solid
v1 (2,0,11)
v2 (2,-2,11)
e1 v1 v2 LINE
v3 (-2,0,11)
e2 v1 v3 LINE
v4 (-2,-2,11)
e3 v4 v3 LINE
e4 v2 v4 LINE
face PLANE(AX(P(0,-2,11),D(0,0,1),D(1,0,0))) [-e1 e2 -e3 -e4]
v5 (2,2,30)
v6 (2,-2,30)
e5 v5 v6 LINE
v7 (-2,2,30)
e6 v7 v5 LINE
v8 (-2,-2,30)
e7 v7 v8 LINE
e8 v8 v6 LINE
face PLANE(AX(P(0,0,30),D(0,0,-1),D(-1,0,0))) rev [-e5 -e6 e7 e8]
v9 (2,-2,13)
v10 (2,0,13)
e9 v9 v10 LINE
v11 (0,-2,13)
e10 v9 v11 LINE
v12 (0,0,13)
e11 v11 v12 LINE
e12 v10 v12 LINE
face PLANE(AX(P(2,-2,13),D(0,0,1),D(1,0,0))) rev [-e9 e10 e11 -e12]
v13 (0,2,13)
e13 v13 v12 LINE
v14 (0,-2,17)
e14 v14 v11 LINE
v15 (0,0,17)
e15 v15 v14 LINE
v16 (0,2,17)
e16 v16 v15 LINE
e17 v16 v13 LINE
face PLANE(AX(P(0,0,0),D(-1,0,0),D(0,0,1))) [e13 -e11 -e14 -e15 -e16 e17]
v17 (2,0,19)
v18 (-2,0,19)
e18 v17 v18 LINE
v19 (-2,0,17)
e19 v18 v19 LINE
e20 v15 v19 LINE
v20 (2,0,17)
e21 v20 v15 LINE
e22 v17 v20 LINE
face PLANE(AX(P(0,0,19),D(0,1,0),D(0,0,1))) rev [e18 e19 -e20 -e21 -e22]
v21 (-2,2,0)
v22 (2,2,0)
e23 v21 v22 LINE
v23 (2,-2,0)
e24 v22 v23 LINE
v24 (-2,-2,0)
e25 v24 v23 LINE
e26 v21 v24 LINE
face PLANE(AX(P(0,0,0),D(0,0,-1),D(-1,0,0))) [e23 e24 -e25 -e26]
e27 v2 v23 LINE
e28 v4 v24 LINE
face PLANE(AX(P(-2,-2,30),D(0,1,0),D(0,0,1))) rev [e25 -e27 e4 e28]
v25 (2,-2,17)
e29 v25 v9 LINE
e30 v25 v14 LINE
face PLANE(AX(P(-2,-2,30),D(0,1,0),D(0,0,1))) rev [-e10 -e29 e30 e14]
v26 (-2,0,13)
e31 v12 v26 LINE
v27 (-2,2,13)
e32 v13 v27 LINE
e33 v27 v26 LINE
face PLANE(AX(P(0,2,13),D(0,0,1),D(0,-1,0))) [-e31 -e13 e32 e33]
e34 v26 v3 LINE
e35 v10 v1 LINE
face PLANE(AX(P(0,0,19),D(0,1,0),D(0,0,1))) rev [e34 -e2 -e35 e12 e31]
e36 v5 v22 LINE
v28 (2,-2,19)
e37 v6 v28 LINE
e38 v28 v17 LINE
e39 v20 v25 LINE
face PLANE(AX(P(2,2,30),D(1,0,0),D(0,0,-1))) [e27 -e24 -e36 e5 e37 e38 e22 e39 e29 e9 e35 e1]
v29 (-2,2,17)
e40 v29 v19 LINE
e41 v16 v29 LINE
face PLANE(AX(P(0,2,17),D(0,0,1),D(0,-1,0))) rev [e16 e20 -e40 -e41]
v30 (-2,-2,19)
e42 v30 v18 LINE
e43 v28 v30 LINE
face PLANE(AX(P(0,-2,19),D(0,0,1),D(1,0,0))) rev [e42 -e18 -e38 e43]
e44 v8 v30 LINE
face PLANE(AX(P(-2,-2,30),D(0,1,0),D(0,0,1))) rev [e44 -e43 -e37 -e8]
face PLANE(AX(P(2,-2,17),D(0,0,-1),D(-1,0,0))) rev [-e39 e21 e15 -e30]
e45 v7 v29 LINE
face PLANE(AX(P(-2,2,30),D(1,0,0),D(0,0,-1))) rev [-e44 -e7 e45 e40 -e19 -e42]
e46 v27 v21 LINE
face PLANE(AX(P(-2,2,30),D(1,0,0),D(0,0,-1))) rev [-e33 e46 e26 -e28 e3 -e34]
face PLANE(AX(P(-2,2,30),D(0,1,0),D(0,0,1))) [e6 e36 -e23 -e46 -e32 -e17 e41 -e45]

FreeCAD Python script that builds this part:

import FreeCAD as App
import Part
import Sketcher
Q = App.Units.Quantity


def add_polygon(sketch, points):
    """Adds a closed chain of lines whose ends are joined by coincident constraints."""
    first, n = sketch.GeometryCount, len(points)
    for a, b in zip(points, points[1:] + points[:1]):
        sketch.addGeometry(Part.LineSegment(App.Vector(*a, 0), App.Vector(*b, 0)), False)
    for i in range(n):
        sketch.addConstraint(Sketcher.Constraint("Coincident", first + i, 2, first + (i + 1) % n, 1))

doc = App.newDocument("Part")
body = doc.addObject("PartDesign::Body", "Body")

sketch1 = body.newObject("Sketcher::SketchObject", "Sketch")
sketch1.AttachmentSupport = (doc.getObject("XY_Plane"), [""])
sketch1.MapMode = "FlatFace"
add_polygon(sketch1, [(-2, 2), (-2, -2), (2, -2), (2, 2)])
sketch1.addConstraint([
    Sketcher.Constraint("Vertical", 0),
    Sketcher.Constraint("Horizontal", 1),
    Sketcher.Constraint("Vertical", 2),
    Sketcher.Constraint("Horizontal", 3),
    Sketcher.Constraint("Symmetric", 0, 2, 2, 2, -1, 1),
    Sketcher.Constraint("Equal", 3, 0),
    Sketcher.Constraint("DistanceX", 1, 1, 1, 2, Q("4 mm")),
])
pad1 = body.newObject("PartDesign::Pad", "Pad")
pad1.Profile = sketch1
pad1.Length = 30

sketch2 = body.newObject("Sketcher::SketchObject", "Sketch001")
sketch2.AttachmentSupport = (doc.getObject("YZ_Plane"), [""])
sketch2.MapMode = "FlatFace"
sketch2.AttachmentOffset = App.Placement(App.Vector(0, 0, -2), App.Rotation())
add_polygon(sketch2, [(0, 11), (-2, 11), (-2, 19), (0, 19)])
sketch2.addConstraint([
    Sketcher.Constraint("Horizontal", 0),
    Sketcher.Constraint("Vertical", 1),
    Sketcher.Constraint("Horizontal", 2),
    Sketcher.Constraint("Vertical", 3),
    Sketcher.Constraint("PointOnObject", 2, 2, -2),
    Sketcher.Constraint("DistanceX", 0, 2, 0, 1, Q("2 mm")),
    Sketcher.Constraint("DistanceY", 1, 1, 1, 2, Q("8 mm")),
    Sketcher.Constraint("DistanceY", -1, 1, 0, 2, Q("11 mm")),
])
pocket1 = body.newObject("PartDesign::Pocket", "Pocket")
pocket1.Profile = sketch2
pocket1.Length = 2
pocket1.Reversed = True

sketch3 = body.newObject("Sketcher::SketchObject", "Sketch002")
sketch3.AttachmentSupport = (doc.getObject("YZ_Plane"), [""])
sketch3.MapMode = "FlatFace"
add_polygon(sketch3, [(0, 17), (-2, 17), (-2, 19), (0, 19)])
sketch3.addConstraint([
    Sketcher.Constraint("Horizontal", 0),
    Sketcher.Constraint("Vertical", 1),
    Sketcher.Constraint("Horizontal", 2),
    Sketcher.Constraint("Vertical", 3),
    Sketcher.Constraint("PointOnObject", 2, 2, -2),
    Sketcher.Constraint("Equal", 2, 1),
    Sketcher.Constraint("DistanceX", 0, 2, 0, 1, Q("2 mm")),
    Sketcher.Constraint("DistanceY", -1, 1, 0, 2, Q("17 mm")),
])
pocket2 = body.newObject("PartDesign::Pocket", "Pocket001")
pocket2.Profile = sketch3
pocket2.Length = 2
pocket2.Reversed = True

sketch4 = body.newObject("Sketcher::SketchObject", "Sketch003")
sketch4.AttachmentSupport = (doc.getObject("YZ_Plane"), [""])
sketch4.MapMode = "FlatFace"
add_polygon(sketch4, [(0, 11), (-2, 11), (-2, 13), (0, 13)])
sketch4.addConstraint([
    Sketcher.Constraint("Horizontal", 0),
    Sketcher.Constraint("Vertical", 1),
    Sketcher.Constraint("Horizontal", 2),
    Sketcher.Constraint("Vertical", 3),
    Sketcher.Constraint("PointOnObject", 2, 2, -2),
    Sketcher.Constraint("Equal", 2, 1),
    Sketcher.Constraint("DistanceX", 0, 2, 0, 1, Q("2 mm")),
    Sketcher.Constraint("DistanceY", -1, 1, 0, 2, Q("11 mm")),
])
pocket3 = body.newObject("PartDesign::Pocket", "Pocket002")
pocket3.Profile = sketch4
pocket3.Length = 2
pocket3.Reversed = True

sketch5 = body.newObject("Sketcher::SketchObject", "Sketch004")
sketch5.AttachmentSupport = (doc.getObject("XZ_Plane"), [""])
sketch5.MapMode = "FlatFace"
add_polygon(sketch5, [(-2, 17), (-2, 13), (0, 13), (0, 17)])
sketch5.addConstraint([
    Sketcher.Constraint("Vertical", 0),
    Sketcher.Constraint("Horizontal", 1),
    Sketcher.Constraint("Vertical", 2),
    Sketcher.Constraint("Horizontal", 3),
    Sketcher.Constraint("PointOnObject", 1, 2, -2),
    Sketcher.Constraint("DistanceX", 1, 1, 1, 2, Q("2 mm")),
    Sketcher.Constraint("DistanceY", 0, 2, 0, 1, Q("4 mm")),
    Sketcher.Constraint("DistanceY", -1, 1, 0, 2, Q("13 mm")),
])
pocket4 = body.newObject("PartDesign::Pocket", "Pocket003")
pocket4.Profile = sketch5
pocket4.Length = 2

doc.recompute()
